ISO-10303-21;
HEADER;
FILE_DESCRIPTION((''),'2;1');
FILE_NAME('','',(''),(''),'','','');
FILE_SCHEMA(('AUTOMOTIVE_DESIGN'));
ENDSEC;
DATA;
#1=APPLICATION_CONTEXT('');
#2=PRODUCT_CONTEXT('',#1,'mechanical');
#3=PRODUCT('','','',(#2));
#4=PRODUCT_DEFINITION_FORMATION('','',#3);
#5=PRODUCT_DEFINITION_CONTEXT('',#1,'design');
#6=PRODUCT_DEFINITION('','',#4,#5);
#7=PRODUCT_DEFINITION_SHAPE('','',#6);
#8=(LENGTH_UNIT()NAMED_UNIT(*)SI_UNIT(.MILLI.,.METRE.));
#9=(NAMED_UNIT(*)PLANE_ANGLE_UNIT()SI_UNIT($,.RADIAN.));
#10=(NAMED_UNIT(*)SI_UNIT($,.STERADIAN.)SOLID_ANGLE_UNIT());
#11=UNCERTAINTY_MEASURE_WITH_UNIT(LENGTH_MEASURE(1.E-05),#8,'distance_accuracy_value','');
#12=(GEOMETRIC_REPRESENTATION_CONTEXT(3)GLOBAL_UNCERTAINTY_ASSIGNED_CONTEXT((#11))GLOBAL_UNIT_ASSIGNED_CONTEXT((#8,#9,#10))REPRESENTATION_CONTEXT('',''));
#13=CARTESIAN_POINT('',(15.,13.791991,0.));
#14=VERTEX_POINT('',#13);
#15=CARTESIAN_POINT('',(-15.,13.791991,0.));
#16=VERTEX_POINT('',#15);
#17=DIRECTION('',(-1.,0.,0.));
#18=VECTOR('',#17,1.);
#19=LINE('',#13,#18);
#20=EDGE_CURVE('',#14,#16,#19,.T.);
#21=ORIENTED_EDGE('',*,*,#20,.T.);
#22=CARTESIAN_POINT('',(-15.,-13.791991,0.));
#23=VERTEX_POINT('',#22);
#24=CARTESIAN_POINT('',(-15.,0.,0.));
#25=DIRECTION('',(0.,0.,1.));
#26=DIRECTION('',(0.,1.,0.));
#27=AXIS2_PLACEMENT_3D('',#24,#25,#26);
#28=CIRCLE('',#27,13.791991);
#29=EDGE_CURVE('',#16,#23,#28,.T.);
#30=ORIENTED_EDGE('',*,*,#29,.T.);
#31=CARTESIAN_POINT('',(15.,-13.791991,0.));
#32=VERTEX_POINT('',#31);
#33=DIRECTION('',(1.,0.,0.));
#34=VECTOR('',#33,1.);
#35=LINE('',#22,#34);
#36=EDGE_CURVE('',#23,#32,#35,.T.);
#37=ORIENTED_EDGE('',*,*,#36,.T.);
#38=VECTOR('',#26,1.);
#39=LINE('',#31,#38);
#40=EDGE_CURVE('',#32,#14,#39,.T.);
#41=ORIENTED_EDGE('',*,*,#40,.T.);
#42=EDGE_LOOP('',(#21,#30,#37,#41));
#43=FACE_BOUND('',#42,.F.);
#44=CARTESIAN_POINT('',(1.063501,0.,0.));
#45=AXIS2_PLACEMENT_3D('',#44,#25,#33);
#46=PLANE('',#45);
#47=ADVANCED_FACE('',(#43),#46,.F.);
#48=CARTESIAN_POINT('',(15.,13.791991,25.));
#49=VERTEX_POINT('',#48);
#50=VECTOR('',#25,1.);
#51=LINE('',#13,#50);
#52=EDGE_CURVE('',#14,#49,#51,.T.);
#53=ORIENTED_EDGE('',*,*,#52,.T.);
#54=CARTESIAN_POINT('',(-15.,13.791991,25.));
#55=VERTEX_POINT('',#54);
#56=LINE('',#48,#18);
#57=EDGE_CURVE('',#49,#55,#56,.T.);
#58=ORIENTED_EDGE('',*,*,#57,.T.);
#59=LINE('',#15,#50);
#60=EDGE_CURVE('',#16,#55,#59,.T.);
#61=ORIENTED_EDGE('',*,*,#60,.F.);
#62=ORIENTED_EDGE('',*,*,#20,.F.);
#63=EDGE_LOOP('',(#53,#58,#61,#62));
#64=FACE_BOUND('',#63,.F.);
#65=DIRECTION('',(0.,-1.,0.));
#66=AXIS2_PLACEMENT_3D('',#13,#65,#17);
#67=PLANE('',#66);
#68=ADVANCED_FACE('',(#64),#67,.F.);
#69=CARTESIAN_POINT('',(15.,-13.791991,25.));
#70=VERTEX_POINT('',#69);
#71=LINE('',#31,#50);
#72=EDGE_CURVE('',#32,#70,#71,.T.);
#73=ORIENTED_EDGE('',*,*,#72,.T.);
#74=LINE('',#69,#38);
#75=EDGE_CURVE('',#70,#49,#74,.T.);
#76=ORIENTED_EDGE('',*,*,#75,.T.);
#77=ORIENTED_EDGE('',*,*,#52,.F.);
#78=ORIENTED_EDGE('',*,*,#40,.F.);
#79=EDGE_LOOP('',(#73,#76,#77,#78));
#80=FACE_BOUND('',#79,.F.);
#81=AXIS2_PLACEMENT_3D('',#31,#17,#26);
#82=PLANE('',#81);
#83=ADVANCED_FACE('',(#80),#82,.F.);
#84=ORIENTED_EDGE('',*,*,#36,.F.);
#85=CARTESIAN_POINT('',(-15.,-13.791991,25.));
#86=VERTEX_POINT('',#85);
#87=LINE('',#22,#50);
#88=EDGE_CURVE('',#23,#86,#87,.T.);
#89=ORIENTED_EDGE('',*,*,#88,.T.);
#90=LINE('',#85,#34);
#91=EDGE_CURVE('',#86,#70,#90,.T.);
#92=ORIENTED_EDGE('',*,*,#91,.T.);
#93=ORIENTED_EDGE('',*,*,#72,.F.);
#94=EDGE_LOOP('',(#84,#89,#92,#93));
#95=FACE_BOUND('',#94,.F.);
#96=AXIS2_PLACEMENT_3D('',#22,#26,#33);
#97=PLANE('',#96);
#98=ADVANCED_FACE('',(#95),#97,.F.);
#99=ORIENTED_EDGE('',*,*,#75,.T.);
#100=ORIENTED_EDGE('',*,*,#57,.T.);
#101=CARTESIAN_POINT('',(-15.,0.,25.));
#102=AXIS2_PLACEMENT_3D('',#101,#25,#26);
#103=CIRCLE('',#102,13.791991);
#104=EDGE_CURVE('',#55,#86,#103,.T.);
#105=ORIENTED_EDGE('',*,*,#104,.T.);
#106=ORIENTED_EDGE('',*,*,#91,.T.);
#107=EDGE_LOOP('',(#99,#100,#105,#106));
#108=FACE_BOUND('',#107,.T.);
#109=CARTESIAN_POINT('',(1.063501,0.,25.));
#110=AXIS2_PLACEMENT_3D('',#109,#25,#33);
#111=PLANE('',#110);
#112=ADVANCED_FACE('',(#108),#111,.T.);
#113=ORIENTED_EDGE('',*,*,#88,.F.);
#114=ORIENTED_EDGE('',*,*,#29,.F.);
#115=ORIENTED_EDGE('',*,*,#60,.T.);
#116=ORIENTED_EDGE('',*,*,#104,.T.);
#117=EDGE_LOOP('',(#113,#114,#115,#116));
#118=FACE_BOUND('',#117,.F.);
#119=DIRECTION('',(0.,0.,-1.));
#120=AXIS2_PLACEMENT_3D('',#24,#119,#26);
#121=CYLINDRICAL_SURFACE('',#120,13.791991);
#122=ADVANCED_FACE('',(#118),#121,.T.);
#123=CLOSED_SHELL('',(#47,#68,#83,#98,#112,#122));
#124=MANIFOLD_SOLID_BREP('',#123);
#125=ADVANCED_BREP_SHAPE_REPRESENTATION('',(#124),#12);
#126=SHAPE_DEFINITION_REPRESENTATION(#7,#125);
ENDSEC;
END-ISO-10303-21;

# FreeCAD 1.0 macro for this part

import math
import FreeCAD as App
import Part
import Sketcher

V = App.Vector
Q = App.Units.Quantity

doc = App.newDocument("Part")
body = doc.addObject("PartDesign::Body", "Body")

# Sketch on XY plane
sketch1 = body.newObject("Sketcher::SketchObject", "Sketch")
sketch1.AttachmentSupport = (doc.getObject("XY_Plane"), [""])
sketch1.MapMode = "FlatFace"
sketch1.addGeometry(Part.LineSegment(V(-15, -14, 0), V(15, -14, 0)), False)
sketch1.addGeometry(Part.LineSegment(V(15, -14, 0), V(15, 14, 0)), False)
sketch1.addGeometry(Part.LineSegment(V(15, 14, 0), V(-15, 14, 0)), False)
sketch1.addGeometry(Part.ArcOfCircle(Part.Circle(V(-15, 0, 0), V(0, 0, 1), 14), math.radians(90), math.radians(270)), False)
sketch1.addConstraint(Sketcher.Constraint("Coincident", 0, 2, 1, 1))
sketch1.addConstraint(Sketcher.Constraint("Coincident", 1, 2, 2, 1))
sketch1.addConstraint(Sketcher.Constraint("Tangent", 2, 2, 3, 1))
sketch1.addConstraint(Sketcher.Constraint("Tangent", 3, 2, 0, 1))
sketch1.addConstraint(Sketcher.Constraint("Horizontal", 0))
sketch1.addConstraint(Sketcher.Constraint("Vertical", 1))
sketch1.addConstraint(Sketcher.Constraint("Horizontal", 2))
sketch1.addConstraint(Sketcher.Constraint("Symmetric", 0, 2, 2, 2, -1, 1))
sketch1.addConstraint(Sketcher.Constraint("DistanceX", 0, 1, 0, 2, Q("30 mm")))
sketch1.addConstraint(Sketcher.Constraint("Radius", 3, Q("13.791991 mm")))
pad1 = body.newObject("PartDesign::Pad", "Pad")
pad1.Profile = sketch1
pad1.Length = 25

doc.recompute()
